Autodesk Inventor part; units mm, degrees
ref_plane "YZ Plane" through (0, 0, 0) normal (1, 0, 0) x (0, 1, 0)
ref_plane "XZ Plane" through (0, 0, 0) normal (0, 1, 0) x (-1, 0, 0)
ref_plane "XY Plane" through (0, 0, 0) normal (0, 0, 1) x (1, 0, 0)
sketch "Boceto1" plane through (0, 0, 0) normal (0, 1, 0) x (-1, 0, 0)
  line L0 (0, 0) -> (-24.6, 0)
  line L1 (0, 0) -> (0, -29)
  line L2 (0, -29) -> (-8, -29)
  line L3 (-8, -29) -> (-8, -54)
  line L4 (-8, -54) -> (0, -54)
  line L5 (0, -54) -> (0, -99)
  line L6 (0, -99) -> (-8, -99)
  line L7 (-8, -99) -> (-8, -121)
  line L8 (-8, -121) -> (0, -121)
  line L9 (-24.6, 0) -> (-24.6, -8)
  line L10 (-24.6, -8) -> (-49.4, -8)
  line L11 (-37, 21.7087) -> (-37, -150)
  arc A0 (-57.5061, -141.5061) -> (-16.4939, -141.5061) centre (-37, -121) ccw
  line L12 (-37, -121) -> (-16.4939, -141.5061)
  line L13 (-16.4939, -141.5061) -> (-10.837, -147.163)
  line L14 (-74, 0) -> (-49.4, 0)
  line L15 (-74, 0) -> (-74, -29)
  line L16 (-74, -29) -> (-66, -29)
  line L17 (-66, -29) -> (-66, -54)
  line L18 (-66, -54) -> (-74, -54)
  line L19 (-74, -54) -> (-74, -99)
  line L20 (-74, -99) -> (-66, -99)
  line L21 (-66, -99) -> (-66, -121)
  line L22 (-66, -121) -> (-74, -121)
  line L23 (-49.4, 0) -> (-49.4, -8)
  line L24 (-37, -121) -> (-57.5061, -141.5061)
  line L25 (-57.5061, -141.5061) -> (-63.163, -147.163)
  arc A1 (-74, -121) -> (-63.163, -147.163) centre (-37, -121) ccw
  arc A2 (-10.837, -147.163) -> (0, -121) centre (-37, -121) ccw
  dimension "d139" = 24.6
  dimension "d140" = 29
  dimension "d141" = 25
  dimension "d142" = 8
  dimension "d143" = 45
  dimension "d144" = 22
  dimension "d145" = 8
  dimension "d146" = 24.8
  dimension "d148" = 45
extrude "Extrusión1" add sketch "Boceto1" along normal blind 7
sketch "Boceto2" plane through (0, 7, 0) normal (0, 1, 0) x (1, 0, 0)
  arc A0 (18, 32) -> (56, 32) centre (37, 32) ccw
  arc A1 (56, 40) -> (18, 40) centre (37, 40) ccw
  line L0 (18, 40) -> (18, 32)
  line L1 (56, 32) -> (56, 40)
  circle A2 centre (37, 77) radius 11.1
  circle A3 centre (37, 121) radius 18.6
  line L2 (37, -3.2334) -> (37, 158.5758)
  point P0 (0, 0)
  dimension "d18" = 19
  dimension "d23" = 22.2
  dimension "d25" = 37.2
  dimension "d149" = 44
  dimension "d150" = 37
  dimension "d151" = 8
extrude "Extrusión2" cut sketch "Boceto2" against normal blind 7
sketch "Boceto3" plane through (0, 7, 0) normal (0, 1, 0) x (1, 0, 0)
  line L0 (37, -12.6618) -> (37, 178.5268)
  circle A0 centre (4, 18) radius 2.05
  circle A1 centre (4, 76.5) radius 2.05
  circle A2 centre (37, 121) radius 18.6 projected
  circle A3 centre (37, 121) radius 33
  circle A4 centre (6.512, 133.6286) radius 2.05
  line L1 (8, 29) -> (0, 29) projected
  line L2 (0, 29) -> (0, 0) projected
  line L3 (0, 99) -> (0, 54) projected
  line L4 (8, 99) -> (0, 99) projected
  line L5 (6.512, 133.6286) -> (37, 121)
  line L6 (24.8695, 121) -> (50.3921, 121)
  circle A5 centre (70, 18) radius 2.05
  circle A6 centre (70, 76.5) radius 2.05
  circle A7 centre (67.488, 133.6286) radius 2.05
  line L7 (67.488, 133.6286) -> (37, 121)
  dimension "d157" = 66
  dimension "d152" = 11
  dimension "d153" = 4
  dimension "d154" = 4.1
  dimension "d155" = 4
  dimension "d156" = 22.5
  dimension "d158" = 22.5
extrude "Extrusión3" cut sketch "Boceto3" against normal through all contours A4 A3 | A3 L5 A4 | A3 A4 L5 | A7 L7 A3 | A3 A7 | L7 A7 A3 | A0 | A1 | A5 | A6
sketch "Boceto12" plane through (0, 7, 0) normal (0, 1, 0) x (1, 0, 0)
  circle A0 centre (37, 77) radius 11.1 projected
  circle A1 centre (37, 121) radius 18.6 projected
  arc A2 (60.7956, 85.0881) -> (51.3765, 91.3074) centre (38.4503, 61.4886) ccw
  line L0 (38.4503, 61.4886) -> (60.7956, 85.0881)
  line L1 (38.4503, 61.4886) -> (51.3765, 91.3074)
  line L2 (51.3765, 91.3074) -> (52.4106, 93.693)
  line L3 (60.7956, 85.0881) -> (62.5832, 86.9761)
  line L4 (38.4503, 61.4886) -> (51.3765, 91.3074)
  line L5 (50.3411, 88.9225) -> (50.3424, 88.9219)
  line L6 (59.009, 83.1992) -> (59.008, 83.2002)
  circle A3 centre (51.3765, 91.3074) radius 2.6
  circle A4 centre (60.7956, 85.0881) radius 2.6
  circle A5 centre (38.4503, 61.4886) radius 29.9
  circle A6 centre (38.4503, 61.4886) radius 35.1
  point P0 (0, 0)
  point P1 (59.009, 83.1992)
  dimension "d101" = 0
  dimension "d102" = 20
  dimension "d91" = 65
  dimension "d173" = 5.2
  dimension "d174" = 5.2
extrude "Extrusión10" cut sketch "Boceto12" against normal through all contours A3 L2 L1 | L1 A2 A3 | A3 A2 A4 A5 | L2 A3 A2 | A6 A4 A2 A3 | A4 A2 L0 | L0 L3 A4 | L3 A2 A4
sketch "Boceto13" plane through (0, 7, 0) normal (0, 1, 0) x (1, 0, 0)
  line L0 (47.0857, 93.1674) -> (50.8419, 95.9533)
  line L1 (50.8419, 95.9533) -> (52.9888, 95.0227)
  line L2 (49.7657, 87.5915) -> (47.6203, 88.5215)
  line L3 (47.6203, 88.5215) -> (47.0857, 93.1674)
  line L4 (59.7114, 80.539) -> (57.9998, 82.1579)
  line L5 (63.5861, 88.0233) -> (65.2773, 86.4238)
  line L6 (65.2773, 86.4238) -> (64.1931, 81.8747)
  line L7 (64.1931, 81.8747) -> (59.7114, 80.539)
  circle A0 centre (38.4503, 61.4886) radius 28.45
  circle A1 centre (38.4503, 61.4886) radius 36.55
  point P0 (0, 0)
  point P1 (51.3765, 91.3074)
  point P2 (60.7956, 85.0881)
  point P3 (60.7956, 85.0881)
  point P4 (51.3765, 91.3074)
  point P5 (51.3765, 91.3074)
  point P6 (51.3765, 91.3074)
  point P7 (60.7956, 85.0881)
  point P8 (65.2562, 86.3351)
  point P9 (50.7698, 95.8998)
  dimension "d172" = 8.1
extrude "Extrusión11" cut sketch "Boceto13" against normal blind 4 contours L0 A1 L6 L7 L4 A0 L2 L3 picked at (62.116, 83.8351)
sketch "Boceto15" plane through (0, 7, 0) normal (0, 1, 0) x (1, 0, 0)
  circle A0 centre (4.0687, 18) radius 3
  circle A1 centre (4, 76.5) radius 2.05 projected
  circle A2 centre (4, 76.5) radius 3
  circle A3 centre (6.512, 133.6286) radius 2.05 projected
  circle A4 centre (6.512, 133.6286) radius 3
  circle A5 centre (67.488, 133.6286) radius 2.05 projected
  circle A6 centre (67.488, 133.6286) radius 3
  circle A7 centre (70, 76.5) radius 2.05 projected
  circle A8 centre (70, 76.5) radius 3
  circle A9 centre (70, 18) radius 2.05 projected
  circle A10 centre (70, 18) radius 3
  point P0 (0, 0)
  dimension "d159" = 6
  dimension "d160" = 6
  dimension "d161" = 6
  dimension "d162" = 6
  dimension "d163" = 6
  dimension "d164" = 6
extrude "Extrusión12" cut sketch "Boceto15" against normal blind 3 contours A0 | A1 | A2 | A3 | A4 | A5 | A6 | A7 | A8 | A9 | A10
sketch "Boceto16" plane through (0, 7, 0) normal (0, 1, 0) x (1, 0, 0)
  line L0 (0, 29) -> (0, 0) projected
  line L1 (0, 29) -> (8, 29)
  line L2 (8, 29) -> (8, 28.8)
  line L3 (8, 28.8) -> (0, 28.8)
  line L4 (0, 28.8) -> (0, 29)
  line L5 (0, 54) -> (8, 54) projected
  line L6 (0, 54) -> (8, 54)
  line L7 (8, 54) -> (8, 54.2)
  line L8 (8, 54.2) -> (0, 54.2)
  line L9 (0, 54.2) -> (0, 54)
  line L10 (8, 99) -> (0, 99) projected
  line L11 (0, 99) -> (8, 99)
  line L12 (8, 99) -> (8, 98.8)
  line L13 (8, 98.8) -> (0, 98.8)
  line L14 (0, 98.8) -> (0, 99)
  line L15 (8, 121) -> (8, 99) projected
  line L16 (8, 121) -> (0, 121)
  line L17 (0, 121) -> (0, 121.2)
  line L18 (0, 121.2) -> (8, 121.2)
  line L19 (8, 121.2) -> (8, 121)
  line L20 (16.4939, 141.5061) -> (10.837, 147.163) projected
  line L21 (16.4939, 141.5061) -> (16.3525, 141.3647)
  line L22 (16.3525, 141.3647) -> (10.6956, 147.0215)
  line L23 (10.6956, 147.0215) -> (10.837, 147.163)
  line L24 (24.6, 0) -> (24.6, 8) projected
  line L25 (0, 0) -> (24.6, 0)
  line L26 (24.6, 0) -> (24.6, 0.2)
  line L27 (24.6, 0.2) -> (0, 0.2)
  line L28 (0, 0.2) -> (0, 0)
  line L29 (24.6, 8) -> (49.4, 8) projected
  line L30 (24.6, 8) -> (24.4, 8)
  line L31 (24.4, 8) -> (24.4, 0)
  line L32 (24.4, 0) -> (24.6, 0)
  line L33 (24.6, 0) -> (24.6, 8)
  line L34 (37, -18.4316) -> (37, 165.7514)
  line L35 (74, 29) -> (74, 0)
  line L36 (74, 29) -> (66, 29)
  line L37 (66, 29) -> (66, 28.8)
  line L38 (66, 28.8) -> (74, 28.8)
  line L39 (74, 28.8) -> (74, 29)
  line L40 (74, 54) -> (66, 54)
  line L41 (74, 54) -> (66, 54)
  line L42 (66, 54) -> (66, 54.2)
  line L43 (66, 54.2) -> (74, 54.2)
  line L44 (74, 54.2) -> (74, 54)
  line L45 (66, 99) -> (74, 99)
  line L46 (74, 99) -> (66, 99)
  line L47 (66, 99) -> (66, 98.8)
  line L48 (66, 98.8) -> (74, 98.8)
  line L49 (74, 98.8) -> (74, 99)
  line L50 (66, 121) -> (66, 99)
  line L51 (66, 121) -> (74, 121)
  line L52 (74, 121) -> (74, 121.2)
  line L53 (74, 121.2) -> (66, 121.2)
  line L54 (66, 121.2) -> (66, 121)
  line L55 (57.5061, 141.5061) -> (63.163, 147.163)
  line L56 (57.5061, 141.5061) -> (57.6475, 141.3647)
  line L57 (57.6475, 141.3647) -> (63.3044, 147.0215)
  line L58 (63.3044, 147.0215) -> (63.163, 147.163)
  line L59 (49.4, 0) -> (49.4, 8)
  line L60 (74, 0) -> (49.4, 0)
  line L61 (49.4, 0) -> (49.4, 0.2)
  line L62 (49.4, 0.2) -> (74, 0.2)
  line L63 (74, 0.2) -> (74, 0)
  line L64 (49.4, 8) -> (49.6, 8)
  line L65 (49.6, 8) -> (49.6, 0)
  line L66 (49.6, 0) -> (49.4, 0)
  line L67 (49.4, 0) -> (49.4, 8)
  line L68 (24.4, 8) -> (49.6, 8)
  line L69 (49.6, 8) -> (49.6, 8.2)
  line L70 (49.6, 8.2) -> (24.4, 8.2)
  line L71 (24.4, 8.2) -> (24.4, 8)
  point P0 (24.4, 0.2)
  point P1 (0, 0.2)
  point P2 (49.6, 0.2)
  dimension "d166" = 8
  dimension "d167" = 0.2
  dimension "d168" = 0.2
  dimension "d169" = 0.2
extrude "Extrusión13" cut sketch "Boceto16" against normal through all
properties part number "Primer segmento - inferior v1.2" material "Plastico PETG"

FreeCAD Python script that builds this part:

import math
import FreeCAD as App
import Part
import Sketcher


def add_polygon(sketch, points):
    """Adds a closed chain of lines whose ends are joined by coincident constraints."""
    first, n = sketch.GeometryCount, len(points)
    for a, b in zip(points, points[1:] + points[:1]):
        sketch.addGeometry(Part.LineSegment(App.Vector(*a, 0), App.Vector(*b, 0)), False)
    for i in range(n):
        sketch.addConstraint(Sketcher.Constraint("Coincident", first + i, 2, first + (i + 1) % n, 1))

doc = App.newDocument("Part")
body = doc.addObject("PartDesign::Body", "Body")

# Sketch on XZ plane
sketch1 = body.newObject("Sketcher::SketchObject", "Sketch")
sketch1.AttachmentSupport = (doc.getObject("XZ_Plane"), [""])
sketch1.MapMode = "FlatFace"
sketch1.addGeometry([
    Part.LineSegment(App.Vector(0, -29, 0), App.Vector(0, 0, 0)),  # 0
    Part.LineSegment(App.Vector(0, 0, 0), App.Vector(25, 0, 0)),  # 1
    Part.LineSegment(App.Vector(25, 0, 0), App.Vector(25, -8, 0)),  # 2
    Part.LineSegment(App.Vector(25, -8, 0), App.Vector(49, -8, 0)),  # 3
    Part.LineSegment(App.Vector(49, -8, 0), App.Vector(49, 0, 0)),  # 4
    Part.LineSegment(App.Vector(49, 0, 0), App.Vector(74, 0, 0)),  # 5
    Part.LineSegment(App.Vector(74, 0, 0), App.Vector(74, -29, 0)),  # 6
    Part.LineSegment(App.Vector(74, -29, 0), App.Vector(66, -29, 0)),  # 7
    Part.LineSegment(App.Vector(66, -29, 0), App.Vector(66, -54, 0)),  # 8
    Part.LineSegment(App.Vector(66, -54, 0), App.Vector(74, -54, 0)),  # 9
    Part.LineSegment(App.Vector(74, -54, 0), App.Vector(74, -99, 0)),  # 10
    Part.LineSegment(App.Vector(74, -99, 0), App.Vector(66, -99, 0)),  # 11
    Part.LineSegment(App.Vector(66, -99, 0), App.Vector(66, -121, 0)),  # 12
    Part.LineSegment(App.Vector(66, -121, 0), App.Vector(74, -121, 0)),  # 13
    Part.ArcOfCircle(Part.Circle(App.Vector(37, -121, 0), App.Vector(0, 0, 1), 37), math.radians(-45), math.radians(0)),  # 14
    Part.LineSegment(App.Vector(63, -147, 0), App.Vector(58, -142, 0)),  # 15
    Part.ArcOfCircle(Part.Circle(App.Vector(37, -121, 0), App.Vector(0, 0, 1), 29), math.radians(-135), math.radians(-45)),  # 16
    Part.LineSegment(App.Vector(16, -142, 0), App.Vector(11, -147, 0)),  # 17
    Part.ArcOfCircle(Part.Circle(App.Vector(37, -121, 0), App.Vector(0, 0, 1), 37), math.radians(180), math.radians(225)),  # 18
    Part.LineSegment(App.Vector(0, -121, 0), App.Vector(8, -121, 0)),  # 19
    Part.LineSegment(App.Vector(8, -121, 0), App.Vector(8, -99, 0)),  # 20
    Part.LineSegment(App.Vector(8, -99, 0), App.Vector(0, -99, 0)),  # 21
    Part.LineSegment(App.Vector(0, -99, 0), App.Vector(0, -54, 0)),  # 22
    Part.LineSegment(App.Vector(0, -54, 0), App.Vector(8, -54, 0)),  # 23
    Part.LineSegment(App.Vector(8, -54, 0), App.Vector(8, -29, 0)),  # 24
    Part.LineSegment(App.Vector(8, -29, 0), App.Vector(0, -29, 0)),  # 25
], False)
sketch1.addConstraint([
    Sketcher.Constraint("Coincident", 0, 2, 1, 1),
    Sketcher.Constraint("Coincident", 1, 2, 2, 1),
    Sketcher.Constraint("Coincident", 2, 2, 3, 1),
    Sketcher.Constraint("Coincident", 3, 2, 4, 1),
    Sketcher.Constraint("Coincident", 4, 2, 5, 1),
    Sketcher.Constraint("Coincident", 5, 2, 6, 1),
    Sketcher.Constraint("Coincident", 6, 2, 7, 1),
    Sketcher.Constraint("Coincident", 7, 2, 8, 1),
    Sketcher.Constraint("Coincident", 8, 2, 9, 1),
    Sketcher.Constraint("Coincident", 9, 2, 10, 1),
    Sketcher.Constraint("Coincident", 10, 2, 11, 1),
    Sketcher.Constraint("Coincident", 11, 2, 12, 1),
    Sketcher.Constraint("Coincident", 12, 2, 13, 1),
    Sketcher.Constraint("Coincident", 13, 2, 14, 2),
    Sketcher.Constraint("Coincident", 14, 1, 15, 1),
    Sketcher.Constraint("Coincident", 15, 2, 16, 2),
    Sketcher.Constraint("Coincident", 16, 1, 17, 1),
    Sketcher.Constraint("Coincident", 17, 2, 18, 2),
    Sketcher.Constraint("Coincident", 18, 1, 19, 1),
    Sketcher.Constraint("Coincident", 19, 2, 20, 1),
    Sketcher.Constraint("Coincident", 20, 2, 21, 1),
    Sketcher.Constraint("Coincident", 21, 2, 22, 1),
    Sketcher.Constraint("Coincident", 22, 2, 23, 1),
    Sketcher.Constraint("Coincident", 23, 2, 24, 1),
    Sketcher.Constraint("Coincident", 24, 2, 25, 1),
    Sketcher.Constraint("Coincident", 25, 2, 0, 1),
    Sketcher.Constraint("Vertical", 0),
    Sketcher.Constraint("Horizontal", 1),
    Sketcher.Constraint("Vertical", 2),
    Sketcher.Constraint("Horizontal", 3),
    Sketcher.Constraint("Vertical", 4),
    Sketcher.Constraint("Horizontal", 5),
    Sketcher.Constraint("Vertical", 6),
    Sketcher.Constraint("Horizontal", 7),
    Sketcher.Constraint("Vertical", 8),
    Sketcher.Constraint("Horizontal", 9),
    Sketcher.Constraint("Vertical", 10),
    Sketcher.Constraint("Horizontal", 11),
    Sketcher.Constraint("Vertical", 12),
    Sketcher.Constraint("Horizontal", 13),
    Sketcher.Constraint("Horizontal", 19),
    Sketcher.Constraint("Vertical", 20),
    Sketcher.Constraint("Horizontal", 21),
    Sketcher.Constraint("Vertical", 22),
    Sketcher.Constraint("Horizontal", 23),
    Sketcher.Constraint("Vertical", 24),
    Sketcher.Constraint("Horizontal", 25),
    Sketcher.Constraint("Coincident", 0, 2, -1, 1),
    Sketcher.Constraint("Coincident", 16, 3, 14, 3),
    Sketcher.Constraint("Coincident", 18, 3, 14, 3),
    Sketcher.Constraint("Equal", 14, 18),
    Sketcher.Constraint("PointOnObject", 4, 2, -1),
    Sketcher.Constraint("PointOnObject", 18, 1, -2),
    Sketcher.Constraint("PointOnObject", 21, 2, -2),
    Sketcher.Constraint("Perpendicular", 15, 17),
    Sketcher.Constraint("Horizontal", 18, 3, 12, 2),
    Sketcher.Constraint("Horizontal", 15, 2, 16, 1),
    Sketcher.Constraint("Horizontal", 14, 1, 17, 2),
    Sketcher.Constraint("Horizontal", 13, 2, 18, 1),
    Sketcher.Constraint("Horizontal", 11, 2, 20, 2),
    Sketcher.Constraint("Horizontal", 9, 2, 22, 2),
    Sketcher.Constraint("Horizontal", 7, 2, 24, 2),
    Sketcher.Constraint("Vertical", 6, 2, 9, 2),
    Sketcher.Constraint("Vertical", 8, 2, 11, 2),
    Sketcher.Constraint("Vertical", 10, 2, 13, 2),
    Sketcher.Constraint("Vertical", 20, 2, 23, 2),
    Sketcher.Constraint("Equal", 1, 5),
    Sketcher.Constraint("Equal", 13, 19),
    Sketcher.Constraint("Equal", 25, 2),
    Sketcher.Constraint("Radius", 16, 29.0),
    Sketcher.Constraint("DistanceX", 7, 2, 7, 1, 8.0),
    Sketcher.Constraint("DistanceY", 0, 1, 0, 2, 29.0),
    Sketcher.Constraint("DistanceY", 8, 2, 8, 1, 25.0),
    Sketcher.Constraint("DistanceY", 10, 2, 10, 1, 45.0),
    Sketcher.Constraint("DistanceY", 12, 2, 12, 1, 22.0),
    Sketcher.Constraint("Distance", 15, 8.0),
    Sketcher.Constraint("DistanceX", 1, 1, 1, 2, 24.6),
    Sketcher.Constraint("DistanceX", -1, 1, 14, 1, 63.163),
])
pad1 = body.newObject("PartDesign::Pad", "Pad")
pad1.Profile = sketch1
pad1.Length = 7
pad1.Reversed = True

# Sketch on XZ plane
sketch2 = body.newObject("Sketcher::SketchObject", "Sketch001")
sketch2.AttachmentSupport = (doc.getObject("XZ_Plane"), [""])
sketch2.MapMode = "FlatFace"
sketch2.AttachmentOffset = App.Placement(App.Vector(0, 0, -7), App.Rotation())
sketch2.addGeometry([
    Part.LineSegment(App.Vector(18, -40, 0), App.Vector(18, -32, 0)),  # 0
    Part.ArcOfCircle(Part.Circle(App.Vector(37, -32, 0), App.Vector(0, 0, 1), 19), math.radians(0), math.radians(180)),  # 1
    Part.LineSegment(App.Vector(56, -32, 0), App.Vector(56, -40, 0)),  # 2
    Part.ArcOfCircle(Part.Circle(App.Vector(37, -40, 0), App.Vector(0, 0, 1), 19), math.radians(180), math.radians(360)),  # 3
    Part.Circle(App.Vector(37, -121, 0), App.Vector(0, 0, 1), 19),  # 4
    Part.Circle(App.Vector(37, -77, 0), App.Vector(0, 0, 1), 11),  # 5
], False)
sketch2.addConstraint([
    Sketcher.Constraint("Tangent", 0, 2, 1, 2),
    Sketcher.Constraint("Tangent", 1, 1, 2, 1),
    Sketcher.Constraint("Tangent", 2, 2, 3, 2),
    Sketcher.Constraint("Tangent", 3, 1, 0, 1),
    Sketcher.Constraint("Vertical", 0),
    Sketcher.Constraint("Vertical", 2),
    Sketcher.Constraint("Vertical", 3, 3, 4, 3),
    Sketcher.Constraint("Vertical", 4, 3, 5, 3),
    Sketcher.Constraint("Radius", 1, 19.0),
    Sketcher.Constraint("Diameter", 4, 37.2),
    Sketcher.Constraint("Diameter", 5, 22.2),
    Sketcher.Constraint("DistanceY", 0, 1, 0, 2, 8.0),
    Sketcher.Constraint("DistanceX", -1, 1, 1, 3, 37.0),
    Sketcher.Constraint("DistanceY", 5, 3, 3, 3, 37.0),
    Sketcher.Constraint("DistanceY", 4, 3, 5, 3, 44.0),
    Sketcher.Constraint("DistanceY", 1, 3, -1, 1, 32.0),
])
pocket1 = body.newObject("PartDesign::Pocket", "Pocket")
pocket1.Profile = sketch2
pocket1.Length = 7
pocket1.Reversed = True

# Sketch on XZ plane
sketch3 = body.newObject("Sketcher::SketchObject", "Sketch002")
sketch3.AttachmentSupport = (doc.getObject("XZ_Plane"), [""])
sketch3.MapMode = "FlatFace"
sketch3.AttachmentOffset = App.Placement(App.Vector(0, 0, -7), App.Rotation())
sketch3.addGeometry([
    Part.Circle(App.Vector(6.5, -133.6, 0), App.Vector(0, 0, 1), 2),  # 0
    Part.Circle(App.Vector(67.5, -133.6, 0), App.Vector(0, 0, 1), 2),  # 1
    Part.Circle(App.Vector(4, -18, 0), App.Vector(0, 0, 1), 2),  # 2
    Part.Circle(App.Vector(4, -76.5, 0), App.Vector(0, 0, 1), 2),  # 3
    Part.Circle(App.Vector(70, -18, 0), App.Vector(0, 0, 1), 2),  # 4
    Part.Circle(App.Vector(70, -76.5, 0), App.Vector(0, 0, 1), 2),  # 5
], False)
sketch3.addConstraint([
    Sketcher.Constraint("Equal", 0, 1),
    Sketcher.Constraint("Equal", 1, 2),
    Sketcher.Constraint("Equal", 2, 3),
    Sketcher.Constraint("Equal", 3, 4),
    Sketcher.Constraint("Equal", 4, 5),
    Sketcher.Constraint("Horizontal", 0, 3, 1, 3),
    Sketcher.Constraint("Horizontal", 2, 3, 4, 3),
    Sketcher.Constraint("Horizontal", 3, 3, 5, 3),
    Sketcher.Constraint("Vertical", 2, 3, 3, 3),
    Sketcher.Constraint("Vertical", 4, 3, 5, 3),
    Sketcher.Constraint("Diameter", 0, 4.1),
    Sketcher.Constraint("DistanceX", -1, 1, 2, 3, 4.0),
    Sketcher.Constraint("DistanceX", 2, 3, 4, 3, 66.0),
    Sketcher.Constraint("DistanceY", 2, 3, -1, 1, 18.0),
    Sketcher.Constraint("DistanceY", 3, 3, -1, 1, 76.5),
    Sketcher.Constraint("DistanceX", -1, 1, 0, 3, 6.512),
    Sketcher.Constraint("DistanceX", -1, 1, 1, 3, 67.488),
    Sketcher.Constraint("DistanceY", 0, 3, -1, 1, 133.6286),
])
pocket2 = body.newObject("PartDesign::Pocket", "Pocket001")
pocket2.Profile = sketch3
pocket2.Type = "ThroughAll"
pocket2.Reversed = True

# Sketch on XZ plane
sketch4 = body.newObject("Sketcher::SketchObject", "Sketch003")
sketch4.AttachmentSupport = (doc.getObject("XZ_Plane"), [""])
sketch4.MapMode = "FlatFace"
sketch4.AttachmentOffset = App.Placement(App.Vector(0, 0, -7), App.Rotation())
sketch4.addGeometry([
    Part.ArcOfCircle(Part.Circle(App.Vector(51.4, -91.3, 0), App.Vector(0, 0, 1), 2.6), math.radians(113), math.radians(293)),
    Part.ArcOfCircle(Part.Circle(App.Vector(38.5, -61.5, 0), App.Vector(0, 0, 1), 29.9), math.radians(-67), math.radians(-47)),
    Part.ArcOfCircle(Part.Circle(App.Vector(60.8, -85.1, 0), App.Vector(0, 0, 1), 2.6), math.radians(-47), math.radians(133)),
    Part.ArcOfCircle(Part.Circle(App.Vector(38.5, -61.5, 0), App.Vector(0, 0, 1), 35.1), math.radians(-66.56), math.radians(-46.56)),
], False)
sketch4.addConstraint([
    Sketcher.Constraint("Tangent", 0, 1, 1, 1),
    Sketcher.Constraint("Tangent", 1, 2, 2, 2),
    Sketcher.Constraint("Tangent", 2, 1, 3, 2),
    Sketcher.Constraint("Tangent", 3, 1, 0, 2),
    Sketcher.Constraint("Coincident", 3, 3, 1, 3),
    Sketcher.Constraint("Radius", 0, 2.6),
    Sketcher.Constraint("Radius", 1, 29.9),
    Sketcher.Constraint("DistanceY", 2, 3, -1, 1, 85.088),
    Sketcher.Constraint("DistanceY", 0, 1, -1, 1, 88.922),
    Sketcher.Constraint("DistanceX", -1, 1, 1, 2, 59.008),
    Sketcher.Constraint("DistanceY", 2, 1, -1, 1, 86.976),
])
pocket3 = body.newObject("PartDesign::Pocket", "Pocket002")
pocket3.Profile = sketch4
pocket3.Type = "ThroughAll"
pocket3.Reversed = True

# Sketch on XZ plane
sketch5 = body.newObject("Sketcher::SketchObject", "Sketch004")
sketch5.AttachmentSupport = (doc.getObject("XZ_Plane"), [""])
sketch5.MapMode = "FlatFace"
sketch5.AttachmentOffset = App.Placement(App.Vector(0, 0, -7), App.Rotation())
sketch5.addGeometry([
    Part.LineSegment(App.Vector(50.8, -95.9, 0), App.Vector(47.1, -93.2, 0)),  # 0
    Part.LineSegment(App.Vector(47.1, -93.2, 0), App.Vector(47.6, -88.5, 0)),  # 1
    Part.LineSegment(App.Vector(47.6, -88.5, 0), App.Vector(49.8, -87.6, 0)),  # 2
    Part.ArcOfCircle(Part.Circle(App.Vector(38.5, -61.5, 0), App.Vector(0, 0, 1), 28.4), math.radians(-66.56), math.radians(-46.59)),  # 3
    Part.LineSegment(App.Vector(58, -82.2, 0), App.Vector(59.7, -80.5, 0)),  # 4
    Part.LineSegment(App.Vector(59.7, -80.5, 0), App.Vector(64.2, -81.9, 0)),  # 5
    Part.LineSegment(App.Vector(64.2, -81.9, 0), App.Vector(65.3, -86.3, 0)),  # 6
    Part.ArcOfCircle(Part.Circle(App.Vector(38.5, -61.5, 0), App.Vector(0, 0, 1), 36.5), math.radians(-70), math.radians(-43)),  # 7
], False)
sketch5.addConstraint([
    Sketcher.Constraint("Coincident", 0, 2, 1, 1),
    Sketcher.Constraint("Coincident", 1, 2, 2, 1),
    Sketcher.Constraint("Tangent", 2, 2, 3, 1),
    Sketcher.Constraint("Tangent", 3, 2, 4, 1),
    Sketcher.Constraint("Coincident", 4, 2, 5, 1),
    Sketcher.Constraint("Coincident", 5, 2, 6, 1),
    Sketcher.Constraint("Coincident", 6, 2, 7, 2),
    Sketcher.Constraint("Coincident", 7, 1, 0, 1),
    Sketcher.Constraint("Coincident", 7, 3, 3, 3),
    Sketcher.Constraint("Equal", 1, 5),
    Sketcher.Constraint("Radius", 3, 28.45),
    Sketcher.Constraint("Radius", 7, 36.55),
    Sketcher.Constraint("DistanceX", 3, 3, 1, 2, 9.17),
    Sketcher.Constraint("DistanceY", 1, 2, 2, 2, 0.93),
    Sketcher.Constraint("DistanceX", 0, 2, 2, 2, 2.68),
    Sketcher.Constraint("DistanceX", 7, 1, 3, 2, 7.23),
    Sketcher.Constraint("Distance", 4, 2.356),
    Sketcher.Constraint("DistanceY", 3, 2, -1, 1, 82.158),
    Sketcher.Constraint("DistanceY", 4, 2, -1, 1, 80.539),
    Sketcher.Constraint("DistanceX", -1, 1, 5, 2, 64.193),
    Sketcher.Constraint("DistanceY", 6, 2, -1, 1, 86.335),
    Sketcher.Constraint("DistanceY", 0, 2, 1, 2, 4.646),
    Sketcher.Constraint("DistanceX", 5, 2, 6, 2, 1.063),
])
pocket4 = body.newObject("PartDesign::Pocket", "Pocket003")
pocket4.Profile = sketch5
pocket4.Length = 4
pocket4.Reversed = True

# Sketch on XZ plane
sketch6 = body.newObject("Sketcher::SketchObject", "Sketch005")
sketch6.AttachmentSupport = (doc.getObject("XZ_Plane"), [""])
sketch6.MapMode = "FlatFace"
sketch6.AttachmentOffset = App.Placement(App.Vector(0, 0, -7), App.Rotation())
sketch6.addGeometry([
    Part.Circle(App.Vector(4.1, -18, 0), App.Vector(0, 0, 1), 3),  # 0
    Part.Circle(App.Vector(4, -76.5, 0), App.Vector(0, 0, 1), 3),  # 1
    Part.Circle(App.Vector(6.5, -133.6, 0), App.Vector(0, 0, 1), 3),  # 2
    Part.Circle(App.Vector(67.5, -133.6, 0), App.Vector(0, 0, 1), 3),  # 3
    Part.Circle(App.Vector(70, -76.5, 0), App.Vector(0, 0, 1), 3),  # 4
    Part.Circle(App.Vector(70, -18, 0), App.Vector(0, 0, 1), 3),  # 5
], False)
sketch6.addConstraint([
    Sketcher.Constraint("Equal", 0, 1),
    Sketcher.Constraint("Equal", 1, 2),
    Sketcher.Constraint("Equal", 2, 3),
    Sketcher.Constraint("Equal", 3, 4),
    Sketcher.Constraint("Equal", 4, 5),
    Sketcher.Constraint("Horizontal", 2, 3, 3, 3),
    Sketcher.Constraint("Horizontal", 1, 3, 4, 3),
    Sketcher.Constraint("Horizontal", 0, 3, 5, 3),
    Sketcher.Constraint("Vertical", 4, 3, 5, 3),
    Sketcher.Constraint("Diameter", 0, 6.0),
    Sketcher.Constraint("DistanceY", 0, 3, -1, 1, 18.0),
    Sketcher.Constraint("DistanceX", -1, 1, 1, 3, 4.0),
    Sketcher.Constraint("DistanceX", -1, 1, 4, 3, 70.0),
    Sketcher.Constraint("DistanceY", 1, 3, -1, 1, 76.5),
    Sketcher.Constraint("DistanceX", -1, 1, 2, 3, 6.512),
    Sketcher.Constraint("DistanceX", -1, 1, 3, 3, 67.488),
    Sketcher.Constraint("DistanceX", -1, 1, 0, 3, 4.0687),
    Sketcher.Constraint("DistanceY", 2, 3, -1, 1, 133.6286),
])
pocket5 = body.newObject("PartDesign::Pocket", "Pocket004")
pocket5.Profile = sketch6
pocket5.Length = 3
pocket5.Reversed = True

# Sketch on XZ plane
sketch7 = body.newObject("Sketcher::SketchObject", "Sketch006")
sketch7.AttachmentSupport = (doc.getObject("XZ_Plane"), [""])
sketch7.MapMode = "FlatFace"
sketch7.AttachmentOffset = App.Placement(App.Vector(0, 0, -7), App.Rotation())
add_polygon(sketch7, [(8, -29), (0, -29), (0, -28.8), (8, -28.8)])  # lines 0-3
add_polygon(sketch7, [(66, -28.8), (74, -28.8), (74, -29), (66, -29)])  # lines 4-7
add_polygon(sketch7, [(24.4, -0.2), (0, -0.2), (0, 0), (24.6, 0), (24.6, -8), (49.4, -8), (49.4, 0), (74, 0), (74, -0.2), (49.6, -0.2), (49.6, -8.2), (24.4, -8.2)])  # lines 8-19
add_polygon(sketch7, [(0, -54.2), (0, -54), (8, -54), (8, -54.2)])  # lines 20-23
add_polygon(sketch7, [(8, -98.8), (8, -99), (0, -99), (0, -98.8)])  # lines 24-27
add_polygon(sketch7, [(0, -121), (8, -121), (8, -121.2), (0, -121.2)])  # lines 28-31
add_polygon(sketch7, [(16.35, -141.36), (16.49, -141.51), (10.84, -147.16), (10.7, -147.02)])  # lines 32-35
add_polygon(sketch7, [(66, -54), (74, -54), (74, -54.2), (66, -54.2)])  # lines 36-39
add_polygon(sketch7, [(74, -99), (66, -99), (66, -98.8), (74, -98.8)])  # lines 40-43
add_polygon(sketch7, [(66, -121.2), (66, -121), (74, -121), (74, -121.2)])  # lines 44-47
add_polygon(sketch7, [(63.16, -147.16), (57.51, -141.51), (57.65, -141.36), (63.3, -147.02)])  # lines 48-51
sketch7.addConstraint([
    Sketcher.Constraint("Horizontal", 0),
    Sketcher.Constraint("Vertical", 1),
    Sketcher.Constraint("Horizontal", 2),
    Sketcher.Constraint("Vertical", 3),
    Sketcher.Constraint("Horizontal", 4),
    Sketcher.Constraint("Vertical", 5),
    Sketcher.Constraint("Horizontal", 6),
    Sketcher.Constraint("Vertical", 7),
    Sketcher.Constraint("Horizontal", 8),
    Sketcher.Constraint("Vertical", 9),
    Sketcher.Constraint("Horizontal", 10),
    Sketcher.Constraint("Vertical", 11),
    Sketcher.Constraint("Horizontal", 12),
    Sketcher.Constraint("Vertical", 13),
    Sketcher.Constraint("Horizontal", 14),
    Sketcher.Constraint("Vertical", 15),
    Sketcher.Constraint("Horizontal", 16),
    Sketcher.Constraint("Vertical", 17),
    Sketcher.Constraint("Horizontal", 18),
    Sketcher.Constraint("Vertical", 19),
    Sketcher.Constraint("Vertical", 20),
    Sketcher.Constraint("Horizontal", 21),
    Sketcher.Constraint("Vertical", 22),
    Sketcher.Constraint("Horizontal", 23),
    Sketcher.Constraint("Vertical", 24),
    Sketcher.Constraint("Horizontal", 25),
    Sketcher.Constraint("Vertical", 26),
    Sketcher.Constraint("Horizontal", 27),
    Sketcher.Constraint("Horizontal", 28),
    Sketcher.Constraint("Vertical", 29),
    Sketcher.Constraint("Horizontal", 30),
    Sketcher.Constraint("Vertical", 31),
    Sketcher.Constraint("Horizontal", 36),
    Sketcher.Constraint("Vertical", 37),
    Sketcher.Constraint("Horizontal", 38),
    Sketcher.Constraint("Vertical", 39),
    Sketcher.Constraint("Horizontal", 40),
    Sketcher.Constraint("Vertical", 41),
    Sketcher.Constraint("Horizontal", 42),
    Sketcher.Constraint("Vertical", 43),
    Sketcher.Constraint("Vertical", 44),
    Sketcher.Constraint("Horizontal", 45),
    Sketcher.Constraint("Vertical", 46),
    Sketcher.Constraint("Horizontal", 47),
    Sketcher.Constraint("Coincident", 9, 2, -1, 1),
    Sketcher.Constraint("PointOnObject", 0, 2, -2),
    Sketcher.Constraint("PointOnObject", 13, 2, -1),
    Sketcher.Constraint("PointOnObject", 20, 2, -2),
    Sketcher.Constraint("PointOnObject", 25, 2, -2),
    Sketcher.Constraint("PointOnObject", 30, 2, -2),
    Sketcher.Constraint("Perpendicular", 32, 33),
    Sketcher.Constraint("Perpendicular", 33, 34),
    Sketcher.Constraint("Perpendicular", 34, 35),
    Sketcher.Constraint("Perpendicular", 35, 48),
    Sketcher.Constraint("Perpendicular", 48, 49),
    Sketcher.Constraint("Perpendicular", 49, 50),
    Sketcher.Constraint("Perpendicular", 50, 51),
    Sketcher.Constraint("Horizontal", 2, 2, 4, 2),
    Sketcher.Constraint("Horizontal", 3, 2, 5, 2),
    Sketcher.Constraint("Horizontal", 8, 2, 15, 2),
    Sketcher.Constraint("Horizontal", 21, 2, 36, 2),
    Sketcher.Constraint("Horizontal", 23, 2, 37, 2),
    Sketcher.Constraint("Horizontal", 25, 2, 40, 2),
    Sketcher.Constraint("Horizontal", 27, 2, 41, 2),
    Sketcher.Constraint("Horizontal", 31, 2, 44, 2),
    Sketcher.Constraint("Horizontal", 30, 2, 46, 2),
    Sketcher.Constraint("Horizontal", 32, 2, 48, 2),
    Sketcher.Constraint("Horizontal", 35, 2, 49, 2),
    Sketcher.Constraint("Horizontal", 34, 2, 50, 2),
    Sketcher.Constraint("Vertical", 5, 2, 14, 2),
    Sketcher.Constraint("Vertical", 3, 2, 21, 2),
    Sketcher.Constraint("Vertical", 22, 2, 24, 2),
    Sketcher.Constraint("Vertical", 27, 2, 28, 2),
    Sketcher.Constraint("Vertical", 15, 2, 36, 2),
    Sketcher.Constraint("Vertical", 7, 2, 38, 2),
    Sketcher.Constraint("Vertical", 39, 2, 40, 2),
    Sketcher.Constraint("Vertical", 37, 2, 42, 2),
    Sketcher.Constraint("Vertical", 41, 2, 44, 2),
    Sketcher.Constraint("Vertical", 43, 2, 45, 2),
    Sketcher.Constraint("Equal", 2, 4),
    Sketcher.Constraint("Equal", 10, 14),
    Sketcher.Constraint("Equal", 8, 16),
    Sketcher.Constraint("Equal", 7, 9),
    Sketcher.Constraint("Equal", 47, 11),
    Sketcher.Constraint("Equal", 13, 17),
    Sketcher.Constraint("Equal", 15, 20),
    Sketcher.Constraint("Equal", 22, 24),
    Sketcher.Constraint("Equal", 26, 29),
    Sketcher.Constraint("Equal", 35, 48),
    Sketcher.Constraint("DistanceX", 0, 2, 0, 1, 8.0),
    Sketcher.Constraint("Distance", 33, 8.0),
    Sketcher.Constraint("DistanceY", 1, 1, 1, 2, 0.2),
    Sketcher.Constraint("Distance", 32, 0.2),
    Sketcher.Constraint("DistanceX", 13, 2, 16, 2, 0.2),
    Sketcher.Constraint("DistanceX", 8, 2, 8, 1, 24.4),
    Sketcher.Constraint("DistanceX", 12, 1, 12, 2, 24.8),
    Sketcher.Constraint("DistanceY", 0, 2, -1, 1, 29.0),
    Sketcher.Constraint("DistanceY", 20, 2, -1, 1, 54.0),
    Sketcher.Constraint("DistanceY", 24, 2, -1, 1, 99.0),
    Sketcher.Constraint("DistanceY", 28, 2, -1, 1, 121.0),
    Sketcher.Constraint("DistanceX", -1, 1, 32, 2, 16.494),
    Sketcher.Constraint("DistanceY", 32, 2, -1, 1, 141.506),
    Sketcher.Constraint("DistanceX", -1, 1, 48, 2, 57.506),
])
pocket6 = body.newObject("PartDesign::Pocket", "Pocket005")
pocket6.Profile = sketch7
pocket6.Type = "ThroughAll"
pocket6.Reversed = True

doc.recompute()
